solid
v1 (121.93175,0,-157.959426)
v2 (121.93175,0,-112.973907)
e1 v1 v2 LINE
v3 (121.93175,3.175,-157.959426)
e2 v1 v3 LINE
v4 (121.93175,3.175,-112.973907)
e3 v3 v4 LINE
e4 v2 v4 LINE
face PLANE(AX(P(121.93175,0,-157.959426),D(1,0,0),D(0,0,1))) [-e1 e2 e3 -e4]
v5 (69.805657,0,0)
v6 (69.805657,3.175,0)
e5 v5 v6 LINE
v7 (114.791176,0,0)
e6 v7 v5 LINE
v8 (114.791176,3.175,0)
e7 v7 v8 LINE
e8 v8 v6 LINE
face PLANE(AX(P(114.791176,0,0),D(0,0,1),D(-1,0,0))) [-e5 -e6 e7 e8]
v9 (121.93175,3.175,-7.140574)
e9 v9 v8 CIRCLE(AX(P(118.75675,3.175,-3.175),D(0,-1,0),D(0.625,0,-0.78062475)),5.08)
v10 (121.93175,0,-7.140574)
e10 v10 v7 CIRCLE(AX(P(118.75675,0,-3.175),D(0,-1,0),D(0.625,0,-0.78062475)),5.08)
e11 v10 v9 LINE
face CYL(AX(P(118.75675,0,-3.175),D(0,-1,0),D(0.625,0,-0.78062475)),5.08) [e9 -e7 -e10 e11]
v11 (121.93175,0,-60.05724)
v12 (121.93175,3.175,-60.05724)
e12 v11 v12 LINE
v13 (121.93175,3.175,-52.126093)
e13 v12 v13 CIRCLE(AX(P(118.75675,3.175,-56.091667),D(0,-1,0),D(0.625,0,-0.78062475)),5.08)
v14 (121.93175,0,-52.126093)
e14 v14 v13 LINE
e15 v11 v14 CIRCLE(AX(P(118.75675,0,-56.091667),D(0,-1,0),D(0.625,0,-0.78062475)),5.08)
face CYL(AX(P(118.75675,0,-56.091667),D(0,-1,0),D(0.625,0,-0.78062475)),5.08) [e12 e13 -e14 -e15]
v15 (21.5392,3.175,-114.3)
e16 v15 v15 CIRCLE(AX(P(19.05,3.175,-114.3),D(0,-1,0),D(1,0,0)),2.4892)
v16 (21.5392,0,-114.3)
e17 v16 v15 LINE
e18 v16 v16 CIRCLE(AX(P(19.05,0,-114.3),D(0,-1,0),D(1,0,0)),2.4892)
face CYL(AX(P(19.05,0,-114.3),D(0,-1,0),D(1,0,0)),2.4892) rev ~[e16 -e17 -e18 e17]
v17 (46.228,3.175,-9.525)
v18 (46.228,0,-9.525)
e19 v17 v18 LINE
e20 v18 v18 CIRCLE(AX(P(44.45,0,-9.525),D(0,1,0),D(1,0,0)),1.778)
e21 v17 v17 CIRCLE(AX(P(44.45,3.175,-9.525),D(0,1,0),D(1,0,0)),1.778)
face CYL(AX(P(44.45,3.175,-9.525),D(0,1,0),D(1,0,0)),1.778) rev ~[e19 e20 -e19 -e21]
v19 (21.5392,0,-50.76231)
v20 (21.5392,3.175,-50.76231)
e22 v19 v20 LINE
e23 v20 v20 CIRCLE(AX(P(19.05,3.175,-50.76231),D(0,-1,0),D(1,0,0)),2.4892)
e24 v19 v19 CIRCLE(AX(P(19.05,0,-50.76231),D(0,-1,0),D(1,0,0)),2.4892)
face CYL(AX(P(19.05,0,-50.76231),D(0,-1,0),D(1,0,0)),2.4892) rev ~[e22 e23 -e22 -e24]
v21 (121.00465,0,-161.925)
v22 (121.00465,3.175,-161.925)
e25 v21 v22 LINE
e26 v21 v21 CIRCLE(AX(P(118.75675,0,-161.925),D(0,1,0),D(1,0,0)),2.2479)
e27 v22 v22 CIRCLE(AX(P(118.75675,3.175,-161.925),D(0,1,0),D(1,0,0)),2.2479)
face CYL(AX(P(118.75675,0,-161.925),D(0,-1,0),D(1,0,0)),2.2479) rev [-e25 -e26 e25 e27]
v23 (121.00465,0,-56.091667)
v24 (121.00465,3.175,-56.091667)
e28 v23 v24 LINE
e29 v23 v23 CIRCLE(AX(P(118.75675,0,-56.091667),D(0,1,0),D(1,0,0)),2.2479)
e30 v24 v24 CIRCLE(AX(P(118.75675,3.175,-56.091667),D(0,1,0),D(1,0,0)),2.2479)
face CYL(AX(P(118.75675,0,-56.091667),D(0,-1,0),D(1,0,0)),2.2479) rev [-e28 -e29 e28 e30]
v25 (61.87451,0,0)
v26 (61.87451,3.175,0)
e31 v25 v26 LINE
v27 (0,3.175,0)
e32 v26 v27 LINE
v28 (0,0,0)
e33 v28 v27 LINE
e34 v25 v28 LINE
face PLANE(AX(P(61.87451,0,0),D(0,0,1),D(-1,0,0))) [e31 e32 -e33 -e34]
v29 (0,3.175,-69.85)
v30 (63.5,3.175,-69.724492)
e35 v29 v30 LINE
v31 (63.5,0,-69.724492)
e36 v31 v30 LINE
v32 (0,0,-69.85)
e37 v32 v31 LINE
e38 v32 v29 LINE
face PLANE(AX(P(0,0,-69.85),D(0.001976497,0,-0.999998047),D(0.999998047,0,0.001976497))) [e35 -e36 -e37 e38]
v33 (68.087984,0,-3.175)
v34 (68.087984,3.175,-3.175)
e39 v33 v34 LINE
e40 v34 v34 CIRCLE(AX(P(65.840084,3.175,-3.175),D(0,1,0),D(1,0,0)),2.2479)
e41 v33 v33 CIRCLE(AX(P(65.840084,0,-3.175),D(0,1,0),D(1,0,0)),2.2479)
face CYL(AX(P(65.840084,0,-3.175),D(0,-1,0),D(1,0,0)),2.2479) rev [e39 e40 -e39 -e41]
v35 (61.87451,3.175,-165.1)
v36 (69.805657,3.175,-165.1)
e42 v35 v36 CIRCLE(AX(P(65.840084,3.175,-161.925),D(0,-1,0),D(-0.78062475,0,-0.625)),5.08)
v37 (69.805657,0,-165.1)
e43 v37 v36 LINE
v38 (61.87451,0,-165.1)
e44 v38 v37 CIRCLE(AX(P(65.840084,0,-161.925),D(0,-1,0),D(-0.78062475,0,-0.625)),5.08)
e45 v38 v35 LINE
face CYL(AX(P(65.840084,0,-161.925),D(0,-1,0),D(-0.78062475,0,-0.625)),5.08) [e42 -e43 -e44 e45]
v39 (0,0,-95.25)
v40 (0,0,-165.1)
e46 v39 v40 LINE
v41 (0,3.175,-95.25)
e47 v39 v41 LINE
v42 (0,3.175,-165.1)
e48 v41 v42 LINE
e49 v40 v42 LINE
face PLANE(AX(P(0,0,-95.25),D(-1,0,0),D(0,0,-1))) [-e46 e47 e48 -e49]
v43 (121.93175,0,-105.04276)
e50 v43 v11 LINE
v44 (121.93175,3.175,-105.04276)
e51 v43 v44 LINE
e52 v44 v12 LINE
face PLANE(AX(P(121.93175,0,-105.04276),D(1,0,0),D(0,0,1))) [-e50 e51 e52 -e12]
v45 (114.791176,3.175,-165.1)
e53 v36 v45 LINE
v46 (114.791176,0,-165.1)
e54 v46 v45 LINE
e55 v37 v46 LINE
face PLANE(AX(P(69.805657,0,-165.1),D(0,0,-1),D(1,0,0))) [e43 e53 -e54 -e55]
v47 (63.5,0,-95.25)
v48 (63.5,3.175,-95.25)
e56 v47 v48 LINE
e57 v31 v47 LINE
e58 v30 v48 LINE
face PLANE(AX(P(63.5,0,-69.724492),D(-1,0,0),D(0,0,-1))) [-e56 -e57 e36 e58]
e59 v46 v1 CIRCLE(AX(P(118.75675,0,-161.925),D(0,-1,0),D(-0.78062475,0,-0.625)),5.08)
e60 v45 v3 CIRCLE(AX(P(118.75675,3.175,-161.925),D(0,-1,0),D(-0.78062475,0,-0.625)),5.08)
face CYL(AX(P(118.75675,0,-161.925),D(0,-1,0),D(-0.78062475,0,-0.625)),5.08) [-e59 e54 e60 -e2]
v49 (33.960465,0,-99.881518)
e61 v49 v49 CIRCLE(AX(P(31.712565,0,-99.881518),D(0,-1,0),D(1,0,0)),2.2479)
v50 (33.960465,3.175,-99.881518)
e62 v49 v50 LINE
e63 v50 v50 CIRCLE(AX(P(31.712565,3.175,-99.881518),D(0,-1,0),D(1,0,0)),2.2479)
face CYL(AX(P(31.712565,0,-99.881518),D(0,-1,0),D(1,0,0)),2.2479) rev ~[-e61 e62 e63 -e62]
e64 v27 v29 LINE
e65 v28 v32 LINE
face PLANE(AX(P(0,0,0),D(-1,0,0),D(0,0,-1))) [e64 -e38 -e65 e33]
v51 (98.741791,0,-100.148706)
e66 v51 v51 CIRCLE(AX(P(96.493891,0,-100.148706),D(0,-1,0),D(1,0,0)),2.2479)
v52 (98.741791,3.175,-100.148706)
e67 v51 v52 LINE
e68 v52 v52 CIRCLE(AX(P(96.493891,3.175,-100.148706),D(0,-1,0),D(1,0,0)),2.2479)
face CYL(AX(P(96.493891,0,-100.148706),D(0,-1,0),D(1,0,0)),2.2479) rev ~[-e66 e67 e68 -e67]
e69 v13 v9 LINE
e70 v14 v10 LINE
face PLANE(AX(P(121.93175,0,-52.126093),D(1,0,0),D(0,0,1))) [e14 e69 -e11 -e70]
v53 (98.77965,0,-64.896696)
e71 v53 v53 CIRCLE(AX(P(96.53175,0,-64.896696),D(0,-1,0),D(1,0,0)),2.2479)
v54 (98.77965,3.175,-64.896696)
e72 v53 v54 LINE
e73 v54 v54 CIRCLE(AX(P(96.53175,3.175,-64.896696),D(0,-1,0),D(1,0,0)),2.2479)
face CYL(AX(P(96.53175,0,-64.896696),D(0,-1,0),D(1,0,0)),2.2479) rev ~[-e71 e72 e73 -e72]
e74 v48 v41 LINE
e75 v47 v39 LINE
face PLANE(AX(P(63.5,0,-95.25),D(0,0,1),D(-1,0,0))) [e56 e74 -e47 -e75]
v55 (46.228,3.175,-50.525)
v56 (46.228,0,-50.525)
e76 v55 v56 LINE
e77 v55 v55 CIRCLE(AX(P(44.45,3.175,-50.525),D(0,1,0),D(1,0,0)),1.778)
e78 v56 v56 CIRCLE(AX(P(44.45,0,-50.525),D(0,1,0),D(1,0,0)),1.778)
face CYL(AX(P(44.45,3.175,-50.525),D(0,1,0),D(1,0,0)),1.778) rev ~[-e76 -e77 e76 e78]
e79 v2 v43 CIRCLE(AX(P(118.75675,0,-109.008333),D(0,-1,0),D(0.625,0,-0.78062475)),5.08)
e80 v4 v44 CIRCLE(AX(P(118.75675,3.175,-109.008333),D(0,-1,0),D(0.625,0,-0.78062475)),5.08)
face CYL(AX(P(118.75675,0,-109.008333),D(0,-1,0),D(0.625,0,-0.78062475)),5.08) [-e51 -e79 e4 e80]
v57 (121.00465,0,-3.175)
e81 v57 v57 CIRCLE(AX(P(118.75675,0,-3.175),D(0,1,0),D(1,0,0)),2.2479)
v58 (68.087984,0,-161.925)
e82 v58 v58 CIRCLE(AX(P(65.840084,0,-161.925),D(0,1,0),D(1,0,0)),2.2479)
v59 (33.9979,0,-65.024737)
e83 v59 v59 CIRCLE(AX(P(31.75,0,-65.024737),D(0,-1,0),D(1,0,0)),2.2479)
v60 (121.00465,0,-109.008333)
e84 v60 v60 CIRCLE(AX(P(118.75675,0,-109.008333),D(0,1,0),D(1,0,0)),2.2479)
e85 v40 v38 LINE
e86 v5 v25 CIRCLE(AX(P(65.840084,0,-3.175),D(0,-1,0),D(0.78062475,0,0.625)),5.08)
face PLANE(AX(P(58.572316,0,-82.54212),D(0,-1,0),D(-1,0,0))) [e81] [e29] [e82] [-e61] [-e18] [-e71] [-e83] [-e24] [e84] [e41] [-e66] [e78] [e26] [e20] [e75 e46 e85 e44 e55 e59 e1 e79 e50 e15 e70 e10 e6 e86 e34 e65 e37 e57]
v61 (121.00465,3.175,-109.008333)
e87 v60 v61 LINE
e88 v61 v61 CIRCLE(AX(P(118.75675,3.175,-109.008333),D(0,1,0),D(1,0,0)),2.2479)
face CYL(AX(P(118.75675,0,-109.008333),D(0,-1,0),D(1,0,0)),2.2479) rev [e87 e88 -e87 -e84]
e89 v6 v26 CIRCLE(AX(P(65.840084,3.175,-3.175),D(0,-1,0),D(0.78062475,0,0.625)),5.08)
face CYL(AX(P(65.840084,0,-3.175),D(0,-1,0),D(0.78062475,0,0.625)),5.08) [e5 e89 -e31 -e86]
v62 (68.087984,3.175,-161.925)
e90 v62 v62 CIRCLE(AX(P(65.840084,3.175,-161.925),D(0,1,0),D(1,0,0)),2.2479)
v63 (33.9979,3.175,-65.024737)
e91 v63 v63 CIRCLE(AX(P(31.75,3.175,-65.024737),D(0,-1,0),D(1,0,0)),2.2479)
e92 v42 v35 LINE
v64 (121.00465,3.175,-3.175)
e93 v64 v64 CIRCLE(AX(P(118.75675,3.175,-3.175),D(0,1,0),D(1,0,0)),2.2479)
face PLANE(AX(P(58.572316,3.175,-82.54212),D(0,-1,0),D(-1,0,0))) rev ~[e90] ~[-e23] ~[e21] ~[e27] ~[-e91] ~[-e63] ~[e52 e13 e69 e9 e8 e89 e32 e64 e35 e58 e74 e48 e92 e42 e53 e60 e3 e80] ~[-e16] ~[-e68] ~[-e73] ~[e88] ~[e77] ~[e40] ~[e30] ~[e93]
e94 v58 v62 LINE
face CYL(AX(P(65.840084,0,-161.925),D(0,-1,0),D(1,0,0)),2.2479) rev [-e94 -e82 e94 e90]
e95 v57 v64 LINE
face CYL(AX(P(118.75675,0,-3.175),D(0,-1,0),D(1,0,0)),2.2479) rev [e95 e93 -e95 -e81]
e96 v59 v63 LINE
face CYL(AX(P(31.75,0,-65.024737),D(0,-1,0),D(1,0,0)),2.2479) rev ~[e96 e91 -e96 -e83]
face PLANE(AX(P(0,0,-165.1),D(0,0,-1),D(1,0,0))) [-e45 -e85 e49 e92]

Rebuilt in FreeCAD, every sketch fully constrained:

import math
import FreeCAD as App
import Part
import Sketcher

V = App.Vector
Q = App.Units.Quantity

doc = App.newDocument("Part")
params = doc.addObject("Spreadsheet::Sheet", "Params")
for row, (alias, value) in enumerate([
    ("sketch1_radius", "0.2 in"),
    ("sketch1_diameter", "0.177 in"),
    ("sketch1_width", "2.5 in"),
    ("sketch1_height", "2.75 in"),
    ("sketch1_width2", "0.125 in"),
    ("pad1_length", "0.125 in"),
    ("sketch2_diameter", "0.196 in"),
    ("sketch2_diameter2", "0.177 in"),
    ("sketch3_diameter", "0.14 in"),
], start=1):
    params.set(f"A{row}", alias)
    params.set(f"B{row}", "=" + value)
    params.setAlias(f"B{row}", alias)

body = doc.addObject("PartDesign::Body", "Body")

sketch1 = doc.addObject("Sketcher::SketchObject", "Sketch")
body.addObject(sketch1)
sketch1.AttachmentSupport = (doc.XZ_Plane, [""])
sketch1.MapMode = "FlatFace"
sketch1.addGeometry(Part.LineSegment(V(61.9, -165.1, 0), V(0, -165.1, 0)), False)
sketch1.addGeometry(Part.LineSegment(V(0, -165.1, 0), V(0, -95.2, 0)), False)
sketch1.addGeometry(Part.LineSegment(V(0, -95.2, 0), V(63.5, -95.2, 0)), False)
sketch1.addGeometry(Part.LineSegment(V(63.5, -95.2, 0), V(63.5, -69.7, 0)), False)
sketch1.addGeometry(Part.LineSegment(V(63.5, -69.7, 0), V(0, -69.8, 0)), False)
sketch1.addGeometry(Part.LineSegment(V(0, -69.8, 0), V(0, 0, 0)), False)
sketch1.addGeometry(Part.LineSegment(V(0, 0, 0), V(61.9, 0, 0)), False)
sketch1.addGeometry(Part.ArcOfCircle(Part.Circle(V(65.8, -3.2, 0), V(0, 0, 1), 5.1), math.radians(39), math.radians(141)), False)
sketch1.addGeometry(Part.LineSegment(V(69.8, 0, 0), V(114.8, 0, 0)), False)
sketch1.addGeometry(Part.ArcOfCircle(Part.Circle(V(118.8, -3.2, 0), V(0, 0, 1), 5.1), math.radians(-51), math.radians(141)), False)
sketch1.addGeometry(Part.LineSegment(V(121.9, -7.1, 0), V(121.9, -52.1, 0)), False)
sketch1.addGeometry(Part.ArcOfCircle(Part.Circle(V(118.8, -56.1, 0), V(0, 0, 1), 5.1), math.radians(-51), math.radians(51)), False)
sketch1.addGeometry(Part.LineSegment(V(121.9, -60.1, 0), V(121.9, -105, 0)), False)
sketch1.addGeometry(Part.ArcOfCircle(Part.Circle(V(118.8, -109, 0), V(0, 0, 1), 5.1), math.radians(-51), math.radians(51)), False)
sketch1.addGeometry(Part.LineSegment(V(121.9, -113, 0), V(121.9, -158, 0)), False)
sketch1.addGeometry(Part.ArcOfCircle(Part.Circle(V(118.8, -161.9, 0), V(0, 0, 1), 5.1), math.radians(-141), math.radians(51)), False)
sketch1.addGeometry(Part.LineSegment(V(114.8, -165.1, 0), V(69.8, -165.1, 0)), False)
sketch1.addGeometry(Part.ArcOfCircle(Part.Circle(V(65.8, -161.9, 0), V(0, 0, 1), 5.1), math.radians(-141), math.radians(-39)), False)
sketch1.addGeometry(Part.Circle(V(118.8, -3.2, 0), V(0, 0, 1), 2.2), False)
sketch1.addGeometry(Part.Circle(V(118.8, -56.1, 0), V(0, 0, 1), 2.2), False)
sketch1.addGeometry(Part.Circle(V(65.8, -3.2, 0), V(0, 0, 1), 2.2), False)
sketch1.addGeometry(Part.Circle(V(118.8, -109, 0), V(0, 0, 1), 2.2), False)
sketch1.addGeometry(Part.Circle(V(118.8, -161.9, 0), V(0, 0, 1), 2.2), False)
sketch1.addGeometry(Part.Circle(V(65.8, -161.9, 0), V(0, 0, 1), 2.2), False)
sketch1.addConstraint(Sketcher.Constraint("Coincident", 0, 2, 1, 1))
sketch1.addConstraint(Sketcher.Constraint("Coincident", 1, 2, 2, 1))
sketch1.addConstraint(Sketcher.Constraint("Coincident", 2, 2, 3, 1))
sketch1.addConstraint(Sketcher.Constraint("Coincident", 3, 2, 4, 1))
sketch1.addConstraint(Sketcher.Constraint("Coincident", 4, 2, 5, 1))
sketch1.addConstraint(Sketcher.Constraint("Coincident", 5, 2, 6, 1))
sketch1.addConstraint(Sketcher.Constraint("Coincident", 6, 2, 7, 2))
sketch1.addConstraint(Sketcher.Constraint("Coincident", 7, 1, 8, 1))
sketch1.addConstraint(Sketcher.Constraint("Coincident", 8, 2, 9, 2))
sketch1.addConstraint(Sketcher.Constraint("Coincident", 9, 1, 10, 1))
sketch1.addConstraint(Sketcher.Constraint("Coincident", 10, 2, 11, 2))
sketch1.addConstraint(Sketcher.Constraint("Coincident", 11, 1, 12, 1))
sketch1.addConstraint(Sketcher.Constraint("Coincident", 12, 2, 13, 2))
sketch1.addConstraint(Sketcher.Constraint("Coincident", 13, 1, 14, 1))
sketch1.addConstraint(Sketcher.Constraint("Coincident", 14, 2, 15, 2))
sketch1.addConstraint(Sketcher.Constraint("Coincident", 15, 1, 16, 1))
sketch1.addConstraint(Sketcher.Constraint("Coincident", 16, 2, 17, 2))
sketch1.addConstraint(Sketcher.Constraint("Coincident", 17, 1, 0, 1))
sketch1.addConstraint(Sketcher.Constraint("Horizontal", 0))
sketch1.addConstraint(Sketcher.Constraint("Vertical", 1))
sketch1.addConstraint(Sketcher.Constraint("Horizontal", 2))
sketch1.addConstraint(Sketcher.Constraint("Vertical", 3))
sketch1.addConstraint(Sketcher.Constraint("Vertical", 5))
sketch1.addConstraint(Sketcher.Constraint("Horizontal", 6))
sketch1.addConstraint(Sketcher.Constraint("Horizontal", 8))
sketch1.addConstraint(Sketcher.Constraint("Vertical", 10))
sketch1.addConstraint(Sketcher.Constraint("Vertical", 12))
sketch1.addConstraint(Sketcher.Constraint("Vertical", 14))
sketch1.addConstraint(Sketcher.Constraint("Horizontal", 16))
sketch1.addConstraint(Sketcher.Constraint("Coincident", 5, 2, -1, 1))
sketch1.addConstraint(Sketcher.Constraint("Coincident", 18, 3, 9, 3))
sketch1.addConstraint(Sketcher.Constraint("Coincident", 19, 3, 11, 3))
sketch1.addConstraint(Sketcher.Constraint("Coincident", 20, 3, 7, 3))
sketch1.addConstraint(Sketcher.Constraint("Coincident", 21, 3, 13, 3))
sketch1.addConstraint(Sketcher.Constraint("Coincident", 22, 3, 15, 3))
sketch1.addConstraint(Sketcher.Constraint("Coincident", 23, 3, 17, 3))
sketch1.addConstraint(Sketcher.Constraint("Equal", 7, 9))
sketch1.addConstraint(Sketcher.Constraint("Equal", 9, 11))
sketch1.addConstraint(Sketcher.Constraint("Equal", 11, 13))
sketch1.addConstraint(Sketcher.Constraint("Equal", 13, 15))
sketch1.addConstraint(Sketcher.Constraint("Equal", 15, 17))
sketch1.addConstraint(Sketcher.Constraint("Equal", 18, 19))
sketch1.addConstraint(Sketcher.Constraint("Equal", 19, 20))
sketch1.addConstraint(Sketcher.Constraint("Equal", 20, 21))
sketch1.addConstraint(Sketcher.Constraint("Equal", 21, 22))
sketch1.addConstraint(Sketcher.Constraint("Equal", 22, 23))
sketch1.addConstraint(Sketcher.Constraint("PointOnObject", 0, 2, -2))
sketch1.addConstraint(Sketcher.Constraint("PointOnObject", 7, 1, -1))
sketch1.addConstraint(Sketcher.Constraint("Horizontal", 7, 3, 9, 3))
sketch1.addConstraint(Sketcher.Constraint("Horizontal", 15, 3, 17, 3))
sketch1.addConstraint(Sketcher.Constraint("Horizontal", 0, 2, 15, 1))
sketch1.addConstraint(Sketcher.Constraint("Vertical", 9, 3, 11, 3))
sketch1.addConstraint(Sketcher.Constraint("Vertical", 11, 3, 13, 3))
sketch1.addConstraint(Sketcher.Constraint("Vertical", 13, 3, 15, 3))
sketch1.addConstraint(Sketcher.Constraint("Vertical", 7, 3, 17, 3))
sketch1.addConstraint(Sketcher.Constraint("Vertical", 10, 2, 11, 1))
sketch1.addConstraint(Sketcher.Constraint("Vertical", 12, 2, 13, 1))
sketch1.addConstraint(Sketcher.Constraint("Vertical", 8, 2, 15, 1))
sketch1.addConstraint(Sketcher.Constraint("Equal", 1, 5))
sketch1.addConstraint(Sketcher.Constraint("Equal", 16, 10))
sketch1.addConstraint(Sketcher.Constraint("Equal", 10, 12))
sketch1.addConstraint(Sketcher.Constraint("Equal", 12, 14))
sketch1.addConstraint(Sketcher.Constraint("Radius", 7, Q("0.2 in")))
sketch1.addConstraint(Sketcher.Constraint("Diameter", 18, Q("0.177 in")))
sketch1.addConstraint(Sketcher.Constraint("DistanceX", 2, 1, 2, 2, Q("2.5 in")))
sketch1.addConstraint(Sketcher.Constraint("DistanceY", 1, 2, 4, 2, Q("1 in")))
sketch1.addConstraint(Sketcher.Constraint("DistanceY", 1, 1, 1, 2, Q("2.75 in")))
sketch1.addConstraint(Sketcher.Constraint("DistanceY", 15, 3, 9, 3, Q("6.25 in")))
sketch1.addConstraint(Sketcher.Constraint("DistanceX", 9, 3, 9, 1, Q("0.125 in")))
sketch1.addConstraint(Sketcher.Constraint("DistanceX", 0, 2, 0, 1, Q("61.87451 mm")))
sketch1.addConstraint(Sketcher.Constraint("DistanceY", 3, 1, 3, 2, Q("25.525508 mm")))
sketch1.setExpression("Constraints[62]", "Params.sketch1_radius")
sketch1.setExpression("Constraints[63]", "Params.sketch1_diameter")
sketch1.setExpression("Constraints[64]", "Params.sketch1_width")
sketch1.setExpression("Constraints[66]", "Params.sketch1_height")
sketch1.setExpression("Constraints[68]", "Params.sketch1_width2")
pad1 = doc.addObject("PartDesign::Pad", "Pad")
body.addObject(pad1)
pad1.Profile = sketch1
pad1.setExpression("Length", "Params.pad1_length")
pad1.Reversed = True

sketch2 = doc.addObject("Sketcher::SketchObject", "Sketch001")
body.addObject(sketch2)
sketch2.AttachmentSupport = (doc.XZ_Plane, [""])
sketch2.MapMode = "FlatFace"
sketch2.addGeometry(Part.Circle(V(19.1, -50.8, 0), V(0, 0, 1), 2.5), False)
sketch2.addGeometry(Part.Circle(V(19.1, -114.3, 0), V(0, 0, 1), 2.5), False)
sketch2.addGeometry(Part.Circle(V(31.8, -65, 0), V(0, 0, 1), 2.2), False)
sketch2.addGeometry(Part.Circle(V(96.5, -64.9, 0), V(0, 0, 1), 2.2), False)
sketch2.addGeometry(Part.Circle(V(96.5, -100.1, 0), V(0, 0, 1), 2.2), False)
sketch2.addGeometry(Part.Circle(V(31.7, -99.9, 0), V(0, 0, 1), 2.2), False)
sketch2.addConstraint(Sketcher.Constraint("Equal", 0, 1))
sketch2.addConstraint(Sketcher.Constraint("Equal", 2, 3))
sketch2.addConstraint(Sketcher.Constraint("Equal", 3, 4))
sketch2.addConstraint(Sketcher.Constraint("Equal", 4, 5))
sketch2.addConstraint(Sketcher.Constraint("Vertical", 0, 3, 1, 3))
sketch2.addConstraint(Sketcher.Constraint("Diameter", 0, Q("0.196 in")))
sketch2.addConstraint(Sketcher.Constraint("Diameter", 2, Q("0.177 in")))
sketch2.addConstraint(Sketcher.Constraint("DistanceY", 1, 3, -1, 1, Q("4.5 in")))
sketch2.addConstraint(Sketcher.Constraint("DistanceX", 0, 3, 2, 3, Q("0.5 in")))
sketch2.addConstraint(Sketcher.Constraint("DistanceX", -1, 1, 0, 3, Q("0.75 in")))
sketch2.addConstraint(Sketcher.Constraint("DistanceY", 0, 3, -1, 1, Q("50.76231 mm")))
sketch2.addConstraint(Sketcher.Constraint("DistanceX", -1, 1, 3, 3, Q("96.53175 mm")))
sketch2.addConstraint(Sketcher.Constraint("DistanceX", -1, 1, 4, 3, Q("96.493891 mm")))
sketch2.addConstraint(Sketcher.Constraint("DistanceY", 5, 3, -1, 1, Q("99.881518 mm")))
sketch2.addConstraint(Sketcher.Constraint("DistanceY", 2, 3, 3, 3, Q("0.128041 mm")))
sketch2.addConstraint(Sketcher.Constraint("DistanceY", 4, 3, 3, 3, Q("35.252011 mm")))
sketch2.addConstraint(Sketcher.Constraint("DistanceY", 5, 3, 2, 3, Q("34.856781 mm")))
sketch2.addConstraint(Sketcher.Constraint("DistanceX", -1, 1, 5, 3, Q("31.712565 mm")))
sketch2.setExpression("Constraints[5]", "Params.sketch2_diameter")
sketch2.setExpression("Constraints[6]", "Params.sketch2_diameter2")
pocket1 = doc.addObject("PartDesign::Pocket", "Pocket")
body.addObject(pocket1)
pocket1.Profile = sketch2
pocket1.Type = "ThroughAll"

sketch3 = doc.addObject("Sketcher::SketchObject", "Sketch002")
body.addObject(sketch3)
sketch3.AttachmentSupport = (doc.XZ_Plane, [""])
sketch3.MapMode = "FlatFace"
sketch3.AttachmentOffset = App.Placement(V(0, 0, -0.125 * 25.4), App.Rotation())
sketch3.addGeometry(Part.Circle(V(44.5, -9.5, 0), V(0, 0, 1), 1.8), False)
sketch3.addGeometry(Part.Circle(V(44.5, -50.5, 0), V(0, 0, 1), 1.8), False)
sketch3.addConstraint(Sketcher.Constraint("Equal", 0, 1))
sketch3.addConstraint(Sketcher.Constraint("Vertical", 0, 3, 1, 3))
sketch3.addConstraint(Sketcher.Constraint("Diameter", 0, Q("0.14 in")))
sketch3.addConstraint(Sketcher.Constraint("DistanceX", -1, 1, 0, 3, Q("1.75 in")))
sketch3.addConstraint(Sketcher.Constraint("DistanceY", 0, 3, -1, 1, Q("0.375 in")))
sketch3.addConstraint(Sketcher.Constraint("DistanceY", 1, 3, -1, 1, Q("50.525 mm")))
sketch3.setExpression("Constraints[2]", "Params.sketch3_diameter")
pocket2 = doc.addObject("PartDesign::Pocket", "Pocket001")
body.addObject(pocket2)
pocket2.Profile = sketch3
pocket2.Type = "ThroughAll"
pocket2.Reversed = True

doc.recompute()
